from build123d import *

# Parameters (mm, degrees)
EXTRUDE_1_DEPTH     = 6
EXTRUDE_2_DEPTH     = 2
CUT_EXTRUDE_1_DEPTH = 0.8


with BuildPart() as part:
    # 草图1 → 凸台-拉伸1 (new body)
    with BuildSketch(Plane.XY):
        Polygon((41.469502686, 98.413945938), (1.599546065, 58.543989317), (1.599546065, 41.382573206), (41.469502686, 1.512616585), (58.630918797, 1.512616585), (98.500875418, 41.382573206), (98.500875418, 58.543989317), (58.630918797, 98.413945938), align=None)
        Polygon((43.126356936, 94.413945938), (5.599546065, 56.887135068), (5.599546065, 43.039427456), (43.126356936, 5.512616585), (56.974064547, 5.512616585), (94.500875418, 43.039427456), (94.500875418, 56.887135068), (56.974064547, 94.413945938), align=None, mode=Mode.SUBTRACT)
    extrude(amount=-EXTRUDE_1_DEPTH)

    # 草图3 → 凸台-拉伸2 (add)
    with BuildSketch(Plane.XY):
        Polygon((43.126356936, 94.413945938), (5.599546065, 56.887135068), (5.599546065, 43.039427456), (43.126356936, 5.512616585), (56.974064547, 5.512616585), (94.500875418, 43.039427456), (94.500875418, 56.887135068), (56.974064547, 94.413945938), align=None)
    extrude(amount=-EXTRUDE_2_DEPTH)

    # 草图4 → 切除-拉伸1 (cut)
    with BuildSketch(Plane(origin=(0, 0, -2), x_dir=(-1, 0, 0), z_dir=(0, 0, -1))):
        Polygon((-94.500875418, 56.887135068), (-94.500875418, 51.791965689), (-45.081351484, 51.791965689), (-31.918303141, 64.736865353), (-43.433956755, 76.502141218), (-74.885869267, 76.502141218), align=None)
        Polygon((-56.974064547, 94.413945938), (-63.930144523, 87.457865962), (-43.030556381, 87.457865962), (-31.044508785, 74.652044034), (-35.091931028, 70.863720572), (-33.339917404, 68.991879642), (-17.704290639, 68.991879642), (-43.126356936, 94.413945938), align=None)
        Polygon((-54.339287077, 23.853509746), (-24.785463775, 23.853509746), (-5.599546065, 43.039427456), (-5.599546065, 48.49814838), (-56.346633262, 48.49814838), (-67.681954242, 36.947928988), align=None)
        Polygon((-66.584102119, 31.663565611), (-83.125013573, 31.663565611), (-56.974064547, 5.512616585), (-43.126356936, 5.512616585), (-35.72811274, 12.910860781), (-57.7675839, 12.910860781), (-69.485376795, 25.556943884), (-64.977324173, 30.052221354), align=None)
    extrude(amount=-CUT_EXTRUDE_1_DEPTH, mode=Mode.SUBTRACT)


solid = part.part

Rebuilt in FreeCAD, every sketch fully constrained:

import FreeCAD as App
import Part
import Sketcher
from FreeCAD import Vector

doc = App.newDocument("Part")
body = doc.addObject("PartDesign::Body", "Body")

# Sketch on XY plane
sketch1 = doc.addObject("Sketcher::SketchObject", "Sketch")
body.addObject(sketch1)
sketch1.AttachmentSupport = (doc.XY_Plane, [""])
sketch1.MapMode = "FlatFace"
sketch1.addGeometry(Part.LineSegment(Vector(41, 98, 0), Vector(2, 59, 0)), False)
sketch1.addGeometry(Part.LineSegment(Vector(2, 59, 0), Vector(2, 41, 0)), False)
sketch1.addGeometry(Part.LineSegment(Vector(2, 41, 0), Vector(41, 2, 0)), False)
sketch1.addGeometry(Part.LineSegment(Vector(41, 2, 0), Vector(59, 2, 0)), False)
sketch1.addGeometry(Part.LineSegment(Vector(59, 2, 0), Vector(99, 41, 0)), False)
sketch1.addGeometry(Part.LineSegment(Vector(99, 41, 0), Vector(99, 59, 0)), False)
sketch1.addGeometry(Part.LineSegment(Vector(99, 59, 0), Vector(59, 98, 0)), False)
sketch1.addGeometry(Part.LineSegment(Vector(59, 98, 0), Vector(41, 98, 0)), False)
sketch1.addGeometry(Part.LineSegment(Vector(6, 57, 0), Vector(43, 94, 0)), False)
sketch1.addGeometry(Part.LineSegment(Vector(43, 94, 0), Vector(57, 94, 0)), False)
sketch1.addGeometry(Part.LineSegment(Vector(57, 94, 0), Vector(95, 57, 0)), False)
sketch1.addGeometry(Part.LineSegment(Vector(95, 57, 0), Vector(95, 43, 0)), False)
sketch1.addGeometry(Part.LineSegment(Vector(95, 43, 0), Vector(57, 6, 0)), False)
sketch1.addGeometry(Part.LineSegment(Vector(57, 6, 0), Vector(43, 6, 0)), False)
sketch1.addGeometry(Part.LineSegment(Vector(43, 6, 0), Vector(6, 43, 0)), False)
sketch1.addGeometry(Part.LineSegment(Vector(6, 43, 0), Vector(6, 57, 0)), False)
sketch1.addConstraint(Sketcher.Constraint("Coincident", 0, 2, 1, 1))
sketch1.addConstraint(Sketcher.Constraint("Coincident", 1, 2, 2, 1))
sketch1.addConstraint(Sketcher.Constraint("Coincident", 2, 2, 3, 1))
sketch1.addConstraint(Sketcher.Constraint("Coincident", 3, 2, 4, 1))
sketch1.addConstraint(Sketcher.Constraint("Coincident", 4, 2, 5, 1))
sketch1.addConstraint(Sketcher.Constraint("Coincident", 5, 2, 6, 1))
sketch1.addConstraint(Sketcher.Constraint("Coincident", 6, 2, 7, 1))
sketch1.addConstraint(Sketcher.Constraint("Coincident", 7, 2, 0, 1))
sketch1.addConstraint(Sketcher.Constraint("Coincident", 8, 2, 9, 1))
sketch1.addConstraint(Sketcher.Constraint("Coincident", 9, 2, 10, 1))
sketch1.addConstraint(Sketcher.Constraint("Coincident", 10, 2, 11, 1))
sketch1.addConstraint(Sketcher.Constraint("Coincident", 11, 2, 12, 1))
sketch1.addConstraint(Sketcher.Constraint("Coincident", 12, 2, 13, 1))
sketch1.addConstraint(Sketcher.Constraint("Coincident", 13, 2, 14, 1))
sketch1.addConstraint(Sketcher.Constraint("Coincident", 14, 2, 15, 1))
sketch1.addConstraint(Sketcher.Constraint("Coincident", 15, 2, 8, 1))
sketch1.addConstraint(Sketcher.Constraint("Vertical", 1))
sketch1.addConstraint(Sketcher.Constraint("Horizontal", 3))
sketch1.addConstraint(Sketcher.Constraint("Vertical", 5))
sketch1.addConstraint(Sketcher.Constraint("Horizontal", 7))
sketch1.addConstraint(Sketcher.Constraint("Horizontal", 9))
sketch1.addConstraint(Sketcher.Constraint("Vertical", 11))
sketch1.addConstraint(Sketcher.Constraint("Horizontal", 13))
sketch1.addConstraint(Sketcher.Constraint("Vertical", 15))
sketch1.addConstraint(Sketcher.Constraint("Perpendicular", 0, 2))
sketch1.addConstraint(Sketcher.Constraint("Perpendicular", 2, 4))
sketch1.addConstraint(Sketcher.Constraint("Perpendicular", 4, 6))
sketch1.addConstraint(Sketcher.Constraint("Perpendicular", 6, 8))
sketch1.addConstraint(Sketcher.Constraint("Perpendicular", 8, 10))
sketch1.addConstraint(Sketcher.Constraint("Perpendicular", 10, 12))
sketch1.addConstraint(Sketcher.Constraint("Perpendicular", 12, 14))
sketch1.addConstraint(Sketcher.Constraint("Horizontal", 1, 2, 4, 2))
sketch1.addConstraint(Sketcher.Constraint("Horizontal", 0, 2, 5, 2))
sketch1.addConstraint(Sketcher.Constraint("Horizontal", 11, 2, 14, 2))
sketch1.addConstraint(Sketcher.Constraint("Horizontal", 10, 2, 15, 2))
sketch1.addConstraint(Sketcher.Constraint("Vertical", 3, 2, 6, 2))
sketch1.addConstraint(Sketcher.Constraint("Vertical", 2, 2, 7, 2))
sketch1.addConstraint(Sketcher.Constraint("Vertical", 9, 2, 12, 2))
sketch1.addConstraint(Sketcher.Constraint("Equal", 7, 1))
sketch1.addConstraint(Sketcher.Constraint("Equal", 13, 11))
sketch1.addConstraint(Sketcher.Constraint("DistanceY", 8, 2, 7, 2, 4.0))
sketch1.addConstraint(Sketcher.Constraint("DistanceX", 10, 2, 5, 2, 4.0))
sketch1.addConstraint(Sketcher.Constraint("DistanceY", 3, 2, 12, 2, 4.0))
sketch1.addConstraint(Sketcher.Constraint("DistanceX", 3, 1, 3, 2, 17.161416))
sketch1.addConstraint(Sketcher.Constraint("DistanceX", 9, 1, 9, 2, 13.847708))
sketch1.addConstraint(Sketcher.Constraint("DistanceY", -1, 1, 0, 2, 58.543989))
sketch1.addConstraint(Sketcher.Constraint("DistanceX", -1, 1, 3, 2, 58.630919))
sketch1.addConstraint(Sketcher.Constraint("DistanceX", 1, 2, 4, 2, 96.901329))
pad1 = doc.addObject("PartDesign::Pad", "Pad")
body.addObject(pad1)
pad1.Profile = sketch1
pad1.Length = 6
pad1.Reversed = True

# Sketch on XY plane
sketch2 = doc.addObject("Sketcher::SketchObject", "Sketch001")
body.addObject(sketch2)
sketch2.AttachmentSupport = (doc.XY_Plane, [""])
sketch2.MapMode = "FlatFace"
sketch2.addGeometry(Part.LineSegment(Vector(43, 94, 0), Vector(6, 57, 0)), False)
sketch2.addGeometry(Part.LineSegment(Vector(6, 57, 0), Vector(6, 43, 0)), False)
sketch2.addGeometry(Part.LineSegment(Vector(6, 43, 0), Vector(43, 6, 0)), False)
sketch2.addGeometry(Part.LineSegment(Vector(43, 6, 0), Vector(57, 6, 0)), False)
sketch2.addGeometry(Part.LineSegment(Vector(57, 6, 0), Vector(95, 43, 0)), False)
sketch2.addGeometry(Part.LineSegment(Vector(95, 43, 0), Vector(95, 57, 0)), False)
sketch2.addGeometry(Part.LineSegment(Vector(95, 57, 0), Vector(57, 94, 0)), False)
sketch2.addGeometry(Part.LineSegment(Vector(57, 94, 0), Vector(43, 94, 0)), False)
sketch2.addConstraint(Sketcher.Constraint("Coincident", 0, 2, 1, 1))
sketch2.addConstraint(Sketcher.Constraint("Coincident", 1, 2, 2, 1))
sketch2.addConstraint(Sketcher.Constraint("Coincident", 2, 2, 3, 1))
sketch2.addConstraint(Sketcher.Constraint("Coincident", 3, 2, 4, 1))
sketch2.addConstraint(Sketcher.Constraint("Coincident", 4, 2, 5, 1))
sketch2.addConstraint(Sketcher.Constraint("Coincident", 5, 2, 6, 1))
sketch2.addConstraint(Sketcher.Constraint("Coincident", 6, 2, 7, 1))
sketch2.addConstraint(Sketcher.Constraint("Coincident", 7, 2, 0, 1))
sketch2.addConstraint(Sketcher.Constraint("Vertical", 1))
sketch2.addConstraint(Sketcher.Constraint("Horizontal", 3))
sketch2.addConstraint(Sketcher.Constraint("Vertical", 5))
sketch2.addConstraint(Sketcher.Constraint("Horizontal", 7))
sketch2.addConstraint(Sketcher.Constraint("Perpendicular", 0, 2))
sketch2.addConstraint(Sketcher.Constraint("Perpendicular", 2, 4))
sketch2.addConstraint(Sketcher.Constraint("Perpendicular", 4, 6))
sketch2.addConstraint(Sketcher.Constraint("Horizontal", 1, 2, 4, 2))
sketch2.addConstraint(Sketcher.Constraint("Horizontal", 0, 2, 5, 2))
sketch2.addConstraint(Sketcher.Constraint("Vertical", 3, 2, 6, 2))
sketch2.addConstraint(Sketcher.Constraint("Vertical", 2, 2, 7, 2))
sketch2.addConstraint(Sketcher.Constraint("Equal", 7, 1))
sketch2.addConstraint(Sketcher.Constraint("DistanceX", 3, 1, 3, 2, 13.847708))
sketch2.addConstraint(Sketcher.Constraint("DistanceX", 1, 2, 2, 2, 37.526811))
sketch2.addConstraint(Sketcher.Constraint("DistanceX", -1, 1, 0, 2, 5.599546))
sketch2.addConstraint(Sketcher.Constraint("DistanceY", -1, 1, 0, 2, 56.887135))
pad2 = doc.addObject("PartDesign::Pad", "Pad001")
body.addObject(pad2)
pad2.Profile = sketch2
pad2.Length = 2
pad2.Reversed = True

# Sketch on XY plane
sketch3 = doc.addObject("Sketcher::SketchObject", "Sketch002")
body.addObject(sketch3)
sketch3.AttachmentSupport = (doc.XY_Plane, [""])
sketch3.MapMode = "FlatFace"
sketch3.AttachmentOffset = App.Placement(Vector(0, 0, -2), App.Rotation())
sketch3.addGeometry(Part.LineSegment(Vector(94.500875, 56.887135, 0), Vector(94.500875, 51.791966, 0)), False)
sketch3.addGeometry(Part.LineSegment(Vector(94.500875, 51.791966, 0), Vector(45.081351, 51.791966, 0)), False)
sketch3.addGeometry(Part.LineSegment(Vector(45.081351, 51.791966, 0), Vector(31.918303, 64.736865, 0)), False)
sketch3.addGeometry(Part.LineSegment(Vector(31.918303, 64.736865, 0), Vector(43.433957, 76.502141, 0)), False)
sketch3.addGeometry(Part.LineSegment(Vector(43.433957, 76.502141, 0), Vector(74.885869, 76.502141, 0)), False)
sketch3.addGeometry(Part.LineSegment(Vector(74.885869, 76.502141, 0), Vector(94.500875, 56.887135, 0)), False)
sketch3.addGeometry(Part.LineSegment(Vector(56.974065, 94.413946, 0), Vector(63.930145, 87.457866, 0)), False)
sketch3.addGeometry(Part.LineSegment(Vector(63.930145, 87.457866, 0), Vector(43.030556, 87.457866, 0)), False)
sketch3.addGeometry(Part.LineSegment(Vector(43.030556, 87.457866, 0), Vector(31.044509, 74.652044, 0)), False)
sketch3.addGeometry(Part.LineSegment(Vector(31.044509, 74.652044, 0), Vector(35.091931, 70.863721, 0)), False)
sketch3.addGeometry(Part.LineSegment(Vector(35.091931, 70.863721, 0), Vector(33.339917, 68.99188, 0)), False)
sketch3.addGeometry(Part.LineSegment(Vector(33.339917, 68.99188, 0), Vector(17.704291, 68.99188, 0)), False)
sketch3.addGeometry(Part.LineSegment(Vector(17.704291, 68.99188, 0), Vector(43.126357, 94.413946, 0)), False)
sketch3.addGeometry(Part.LineSegment(Vector(43.126357, 94.413946, 0), Vector(56.974065, 94.413946, 0)), False)
sketch3.addGeometry(Part.LineSegment(Vector(54.339287, 23.85351, 0), Vector(24.785464, 23.85351, 0)), False)
sketch3.addGeometry(Part.LineSegment(Vector(24.785464, 23.85351, 0), Vector(5.599546, 43.039427, 0)), False)
sketch3.addGeometry(Part.LineSegment(Vector(5.599546, 43.039427, 0), Vector(5.599546, 48.498148, 0)), False)
sketch3.addGeometry(Part.LineSegment(Vector(5.599546, 48.498148, 0), Vector(56.346633, 48.498148, 0)), False)
sketch3.addGeometry(Part.LineSegment(Vector(56.346633, 48.498148, 0), Vector(67.681954, 36.947929, 0)), False)
sketch3.addGeometry(Part.LineSegment(Vector(67.681954, 36.947929, 0), Vector(54.339287, 23.85351, 0)), False)
sketch3.addGeometry(Part.LineSegment(Vector(66.584102, 31.663566, 0), Vector(83.125014, 31.663566, 0)), False)
sketch3.addGeometry(Part.LineSegment(Vector(83.125014, 31.663566, 0), Vector(56.974065, 5.512617, 0)), False)
sketch3.addGeometry(Part.LineSegment(Vector(56.974065, 5.512617, 0), Vector(43.126357, 5.512617, 0)), False)
sketch3.addGeometry(Part.LineSegment(Vector(43.126357, 5.512617, 0), Vector(35.728113, 12.910861, 0)), False)
sketch3.addGeometry(Part.LineSegment(Vector(35.728113, 12.910861, 0), Vector(57.767584, 12.910861, 0)), False)
sketch3.addGeometry(Part.LineSegment(Vector(57.767584, 12.910861, 0), Vector(69.485377, 25.556944, 0)), False)
sketch3.addGeometry(Part.LineSegment(Vector(69.485377, 25.556944, 0), Vector(64.977324, 30.052221, 0)), False)
sketch3.addGeometry(Part.LineSegment(Vector(64.977324, 30.052221, 0), Vector(66.584102, 31.663566, 0)), False)
sketch3.addConstraint(Sketcher.Constraint("Coincident", 0, 2, 1, 1))
sketch3.addConstraint(Sketcher.Constraint("Coincident", 1, 2, 2, 1))
sketch3.addConstraint(Sketcher.Constraint("Coincident", 2, 2, 3, 1))
sketch3.addConstraint(Sketcher.Constraint("Coincident", 3, 2, 4, 1))
sketch3.addConstraint(Sketcher.Constraint("Coincident", 4, 2, 5, 1))
sketch3.addConstraint(Sketcher.Constraint("Coincident", 5, 2, 0, 1))
sketch3.addConstraint(Sketcher.Constraint("Coincident", 6, 2, 7, 1))
sketch3.addConstraint(Sketcher.Constraint("Coincident", 7, 2, 8, 1))
sketch3.addConstraint(Sketcher.Constraint("Coincident", 8, 2, 9, 1))
sketch3.addConstraint(Sketcher.Constraint("Coincident", 9, 2, 10, 1))
sketch3.addConstraint(Sketcher.Constraint("Coincident", 10, 2, 11, 1))
sketch3.addConstraint(Sketcher.Constraint("Coincident", 11, 2, 12, 1))
sketch3.addConstraint(Sketcher.Constraint("Coincident", 12, 2, 13, 1))
sketch3.addConstraint(Sketcher.Constraint("Coincident", 13, 2, 6, 1))
sketch3.addConstraint(Sketcher.Constraint("Coincident", 14, 2, 15, 1))
sketch3.addConstraint(Sketcher.Constraint("Coincident", 15, 2, 16, 1))
sketch3.addConstraint(Sketcher.Constraint("Coincident", 16, 2, 17, 1))
sketch3.addConstraint(Sketcher.Constraint("Coincident", 17, 2, 18, 1))
sketch3.addConstraint(Sketcher.Constraint("Coincident", 18, 2, 19, 1))
sketch3.addConstraint(Sketcher.Constraint("Coincident", 19, 2, 14, 1))
sketch3.addConstraint(Sketcher.Constraint("Coincident", 20, 2, 21, 1))
sketch3.addConstraint(Sketcher.Constraint("Coincident", 21, 2, 22, 1))
sketch3.addConstraint(Sketcher.Constraint("Coincident", 22, 2, 23, 1))
sketch3.addConstraint(Sketcher.Constraint("Coincident", 23, 2, 24, 1))
sketch3.addConstraint(Sketcher.Constraint("Coincident", 24, 2, 25, 1))
sketch3.addConstraint(Sketcher.Constraint("Coincident", 25, 2, 26, 1))
sketch3.addConstraint(Sketcher.Constraint("Coincident", 26, 2, 27, 1))
sketch3.addConstraint(Sketcher.Constraint("Coincident", 27, 2, 20, 1))
sketch3.addConstraint(Sketcher.Constraint("Vertical", 0))
sketch3.addConstraint(Sketcher.Constraint("Horizontal", 1))
sketch3.addConstraint(Sketcher.Constraint("Horizontal", 4))
sketch3.addConstraint(Sketcher.Constraint("Horizontal", 7))
sketch3.addConstraint(Sketcher.Constraint("Horizontal", 11))
sketch3.addConstraint(Sketcher.Constraint("Horizontal", 13))
sketch3.addConstraint(Sketcher.Constraint("Horizontal", 14))
sketch3.addConstraint(Sketcher.Constraint("Vertical", 16))
sketch3.addConstraint(Sketcher.Constraint("Horizontal", 17))
sketch3.addConstraint(Sketcher.Constraint("Horizontal", 20))
sketch3.addConstraint(Sketcher.Constraint("Horizontal", 22))
sketch3.addConstraint(Sketcher.Constraint("Horizontal", 24))
sketch3.addConstraint(Sketcher.Constraint("DistanceY", 2, 2, 6, 2, 22.721001))
sketch3.addConstraint(Sketcher.Constraint("DistanceX", 7, 2, 7, 1, 20.899588))
sketch3.addConstraint(Sketcher.Constraint("DistanceX", 20, 1, 20, 2, 16.540911))
sketch3.addConstraint(Sketcher.Constraint("DistanceX", 24, 1, 24, 2, 22.039471))
sketch3.addConstraint(Sketcher.Constraint("DistanceY", 0, 2, 0, 1, 5.095169))
sketch3.addConstraint(Sketcher.Constraint("DistanceY", 16, 1, 16, 2, 5.458721))
sketch3.addConstraint(Sketcher.Constraint("DistanceY", 1, 2, 2, 2, 12.9449))
sketch3.addConstraint(Sketcher.Constraint("DistanceX", 7, 2, 3, 2, 0.4034))
sketch3.addConstraint(Sketcher.Constraint("DistanceX", 7, 2, 12, 2, 0.095801))
sketch3.addConstraint(Sketcher.Constraint("DistanceY", 8, 2, 12, 2, 19.761902))
sketch3.addConstraint(Sketcher.Constraint("DistanceY", 20, 2, 0, 2, 20.1284))
sketch3.addConstraint(Sketcher.Constraint("DistanceX", 14, 2, 21, 2, 32.188601))
sketch3.addConstraint(Sketcher.Constraint("Distance", 2, 18.461752))
sketch3.addConstraint(Sketcher.Constraint("Distance", 3, 16.463049))
sketch3.addConstraint(Sketcher.Constraint("Distance", 8, 17.54008))
sketch3.addConstraint(Sketcher.Constraint("Distance", 12, 35.952231))
sketch3.addConstraint(Sketcher.Constraint("Distance", 27, 2.275558))
sketch3.addConstraint(Sketcher.Constraint("DistanceX", 1, 2, 1, 1, 49.419524))
sketch3.addConstraint(Sketcher.Constraint("DistanceX", 4, 1, 4, 2, 31.451913))
sketch3.addConstraint(Sketcher.Constraint("DistanceX", 11, 2, 11, 1, 15.635627))
sketch3.addConstraint(Sketcher.Constraint("DistanceX", 13, 1, 13, 2, 13.847708))
sketch3.addConstraint(Sketcher.Constraint("DistanceX", 14, 2, 14, 1, 29.553823))
sketch3.addConstraint(Sketcher.Constraint("DistanceX", 17, 1, 17, 2, 50.747087))
sketch3.addConstraint(Sketcher.Constraint("DistanceX", 22, 2, 22, 1, 13.847708))
sketch3.addConstraint(Sketcher.Constraint("DistanceX", -1, 1, 1, 2, 45.081351))
sketch3.addConstraint(Sketcher.Constraint("DistanceY", -1, 1, 3, 2, 76.502141))
sketch3.addConstraint(Sketcher.Constraint("DistanceX", -1, 1, 4, 2, 74.885869))
sketch3.addConstraint(Sketcher.Constraint("DistanceX", -1, 1, 8, 2, 31.044509))
sketch3.addConstraint(Sketcher.Constraint("DistanceX", -1, 1, 9, 2, 35.091931))
sketch3.addConstraint(Sketcher.Constraint("DistanceY", -1, 1, 9, 2, 70.863721))
sketch3.addConstraint(Sketcher.Constraint("DistanceY", -1, 1, 10, 2, 68.99188))
sketch3.addConstraint(Sketcher.Constraint("DistanceY", -1, 1, 14, 2, 23.85351))
sketch3.addConstraint(Sketcher.Constraint("DistanceY", -1, 1, 16, 2, 48.498148))
sketch3.addConstraint(Sketcher.Constraint("DistanceY", -1, 1, 18, 2, 36.947929))
sketch3.addConstraint(Sketcher.Constraint("DistanceY", -1, 1, 23, 2, 12.910861))
sketch3.addConstraint(Sketcher.Constraint("DistanceY", -1, 1, 26, 2, 30.052221))
sketch3.addConstraint(Sketcher.Constraint("DistanceX", 14, 2, 2, 2, 7.132839))
sketch3.addConstraint(Sketcher.Constraint("DistanceX", 15, 2, 10, 2, 27.740371))
sketch3.addConstraint(Sketcher.Constraint("DistanceX", 17, 2, 18, 2, 11.335321))
sketch3.addConstraint(Sketcher.Constraint("DistanceX", 18, 2, 20, 2, 15.443059))
sketch3.addConstraint(Sketcher.Constraint("DistanceY", 21, 2, 20, 2, 26.150949))
sketch3.addConstraint(Sketcher.Constraint("DistanceX", 14, 2, 23, 2, 10.942649))
sketch3.addConstraint(Sketcher.Constraint("DistanceY", 25, 2, 20, 2, 6.106622))
sketch3.addConstraint(Sketcher.Constraint("DistanceX", 19, 2, 25, 2, 15.14609))
pocket1 = doc.addObject("PartDesign::Pocket", "Pocket")
body.addObject(pocket1)
pocket1.Profile = sketch3
pocket1.Length = 0.8
pocket1.Reversed = True

doc.recompute()
